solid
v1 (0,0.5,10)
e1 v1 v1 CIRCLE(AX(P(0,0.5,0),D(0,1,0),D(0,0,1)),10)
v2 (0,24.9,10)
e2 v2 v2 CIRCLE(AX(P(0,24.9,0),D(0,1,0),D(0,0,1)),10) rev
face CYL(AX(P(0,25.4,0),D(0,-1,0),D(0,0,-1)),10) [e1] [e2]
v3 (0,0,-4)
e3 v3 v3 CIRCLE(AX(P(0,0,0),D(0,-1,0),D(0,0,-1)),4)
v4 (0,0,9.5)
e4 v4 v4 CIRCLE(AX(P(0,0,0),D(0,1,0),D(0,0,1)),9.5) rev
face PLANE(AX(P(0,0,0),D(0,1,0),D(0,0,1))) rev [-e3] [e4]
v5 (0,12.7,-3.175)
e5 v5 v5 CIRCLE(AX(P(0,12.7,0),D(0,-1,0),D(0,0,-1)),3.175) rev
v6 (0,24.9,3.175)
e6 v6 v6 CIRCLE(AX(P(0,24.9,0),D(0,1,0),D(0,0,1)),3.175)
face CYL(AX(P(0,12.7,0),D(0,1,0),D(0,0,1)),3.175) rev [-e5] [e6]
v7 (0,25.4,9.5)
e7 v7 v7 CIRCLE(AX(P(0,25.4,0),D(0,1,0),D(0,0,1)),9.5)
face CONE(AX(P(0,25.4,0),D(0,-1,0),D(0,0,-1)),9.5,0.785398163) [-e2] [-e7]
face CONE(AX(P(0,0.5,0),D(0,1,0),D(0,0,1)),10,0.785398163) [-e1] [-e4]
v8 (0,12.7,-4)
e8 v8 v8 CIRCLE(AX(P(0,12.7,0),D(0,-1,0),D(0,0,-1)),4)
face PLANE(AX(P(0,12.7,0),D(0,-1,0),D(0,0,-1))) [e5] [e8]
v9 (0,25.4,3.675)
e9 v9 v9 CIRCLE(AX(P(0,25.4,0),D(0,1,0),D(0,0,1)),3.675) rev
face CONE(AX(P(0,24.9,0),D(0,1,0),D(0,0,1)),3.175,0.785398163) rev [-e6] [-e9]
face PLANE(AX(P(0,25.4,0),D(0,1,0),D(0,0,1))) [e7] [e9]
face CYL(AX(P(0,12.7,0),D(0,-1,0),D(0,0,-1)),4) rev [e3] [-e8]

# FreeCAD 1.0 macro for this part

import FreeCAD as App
import Part
import Sketcher

V = App.Vector
Q = App.Units.Quantity


def edges_at(feature, points):
    """Names of the edges that pass closest to the given points."""
    edges = feature.Shape.Edges
    near = lambda p: min(range(len(edges)), key=lambda i: edges[i].distToShape(Part.Vertex(*p))[0])
    return sorted({f"Edge{near(p) + 1}" for p in points})

doc = App.newDocument("Part")
body = doc.addObject("PartDesign::Body", "Body")

# Sketch on XZ plane
sketch1 = body.newObject("Sketcher::SketchObject", "Sketch")
sketch1.AttachmentSupport = (doc.getObject("XZ_Plane"), [""])
sketch1.MapMode = "FlatFace"
sketch1.addGeometry(Part.Circle(V(0, 0, 0), V(0, 0, 1), 10), False)
sketch1.addConstraint([
    Sketcher.Constraint("Coincident", 0, 3, -1, 1),
    Sketcher.Constraint("Diameter", 0, Q("20 mm")),
])
pad1 = body.newObject("PartDesign::Pad", "Pad")
pad1.Profile = sketch1
pad1.Length = 25.4
pad1.Reversed = True

# Sketch on XZ plane
sketch2 = body.newObject("Sketcher::SketchObject", "Sketch001")
sketch2.AttachmentSupport = (doc.getObject("XZ_Plane"), [""])
sketch2.MapMode = "FlatFace"
sketch2.AttachmentOffset = App.Placement(V(0, 0, -25.4), App.Rotation())
sketch2.addGeometry(Part.Circle(V(0, 0, 0), V(0, 0, 1), 3.175), False)
sketch2.addConstraint([
    Sketcher.Constraint("Coincident", 0, 3, -1, 1),
    Sketcher.Constraint("Diameter", 0, Q("6.35 mm")),
])
pocket1 = body.newObject("PartDesign::Pocket", "Pocket")
pocket1.Profile = sketch2
pocket1.Length = 12.7
pocket1.Reversed = True
doc.recompute()

chamfer = body.newObject("PartDesign::Chamfer", "Chamfer")
chamfer.Base = (pocket1, edges_at(pocket1, [(0, 0, -10), (0, 25.4, -10), (0, 25.4, -3.175)]))
chamfer.Size = 0.5

# Sketch on XZ plane
sketch3 = body.newObject("Sketcher::SketchObject", "Sketch002")
sketch3.AttachmentSupport = (doc.getObject("XZ_Plane"), [""])
sketch3.MapMode = "FlatFace"
sketch3.addGeometry(Part.Circle(V(0, 0, 0), V(0, 0, 1), 4), False)
sketch3.addConstraint([
    Sketcher.Constraint("Coincident", 0, 3, -1, 1),
    Sketcher.Constraint("Diameter", 0, Q("8 mm")),
])
pocket2 = body.newObject("PartDesign::Pocket", "Pocket001")
pocket2.Profile = sketch3
pocket2.Length = 12.7

doc.recompute()
